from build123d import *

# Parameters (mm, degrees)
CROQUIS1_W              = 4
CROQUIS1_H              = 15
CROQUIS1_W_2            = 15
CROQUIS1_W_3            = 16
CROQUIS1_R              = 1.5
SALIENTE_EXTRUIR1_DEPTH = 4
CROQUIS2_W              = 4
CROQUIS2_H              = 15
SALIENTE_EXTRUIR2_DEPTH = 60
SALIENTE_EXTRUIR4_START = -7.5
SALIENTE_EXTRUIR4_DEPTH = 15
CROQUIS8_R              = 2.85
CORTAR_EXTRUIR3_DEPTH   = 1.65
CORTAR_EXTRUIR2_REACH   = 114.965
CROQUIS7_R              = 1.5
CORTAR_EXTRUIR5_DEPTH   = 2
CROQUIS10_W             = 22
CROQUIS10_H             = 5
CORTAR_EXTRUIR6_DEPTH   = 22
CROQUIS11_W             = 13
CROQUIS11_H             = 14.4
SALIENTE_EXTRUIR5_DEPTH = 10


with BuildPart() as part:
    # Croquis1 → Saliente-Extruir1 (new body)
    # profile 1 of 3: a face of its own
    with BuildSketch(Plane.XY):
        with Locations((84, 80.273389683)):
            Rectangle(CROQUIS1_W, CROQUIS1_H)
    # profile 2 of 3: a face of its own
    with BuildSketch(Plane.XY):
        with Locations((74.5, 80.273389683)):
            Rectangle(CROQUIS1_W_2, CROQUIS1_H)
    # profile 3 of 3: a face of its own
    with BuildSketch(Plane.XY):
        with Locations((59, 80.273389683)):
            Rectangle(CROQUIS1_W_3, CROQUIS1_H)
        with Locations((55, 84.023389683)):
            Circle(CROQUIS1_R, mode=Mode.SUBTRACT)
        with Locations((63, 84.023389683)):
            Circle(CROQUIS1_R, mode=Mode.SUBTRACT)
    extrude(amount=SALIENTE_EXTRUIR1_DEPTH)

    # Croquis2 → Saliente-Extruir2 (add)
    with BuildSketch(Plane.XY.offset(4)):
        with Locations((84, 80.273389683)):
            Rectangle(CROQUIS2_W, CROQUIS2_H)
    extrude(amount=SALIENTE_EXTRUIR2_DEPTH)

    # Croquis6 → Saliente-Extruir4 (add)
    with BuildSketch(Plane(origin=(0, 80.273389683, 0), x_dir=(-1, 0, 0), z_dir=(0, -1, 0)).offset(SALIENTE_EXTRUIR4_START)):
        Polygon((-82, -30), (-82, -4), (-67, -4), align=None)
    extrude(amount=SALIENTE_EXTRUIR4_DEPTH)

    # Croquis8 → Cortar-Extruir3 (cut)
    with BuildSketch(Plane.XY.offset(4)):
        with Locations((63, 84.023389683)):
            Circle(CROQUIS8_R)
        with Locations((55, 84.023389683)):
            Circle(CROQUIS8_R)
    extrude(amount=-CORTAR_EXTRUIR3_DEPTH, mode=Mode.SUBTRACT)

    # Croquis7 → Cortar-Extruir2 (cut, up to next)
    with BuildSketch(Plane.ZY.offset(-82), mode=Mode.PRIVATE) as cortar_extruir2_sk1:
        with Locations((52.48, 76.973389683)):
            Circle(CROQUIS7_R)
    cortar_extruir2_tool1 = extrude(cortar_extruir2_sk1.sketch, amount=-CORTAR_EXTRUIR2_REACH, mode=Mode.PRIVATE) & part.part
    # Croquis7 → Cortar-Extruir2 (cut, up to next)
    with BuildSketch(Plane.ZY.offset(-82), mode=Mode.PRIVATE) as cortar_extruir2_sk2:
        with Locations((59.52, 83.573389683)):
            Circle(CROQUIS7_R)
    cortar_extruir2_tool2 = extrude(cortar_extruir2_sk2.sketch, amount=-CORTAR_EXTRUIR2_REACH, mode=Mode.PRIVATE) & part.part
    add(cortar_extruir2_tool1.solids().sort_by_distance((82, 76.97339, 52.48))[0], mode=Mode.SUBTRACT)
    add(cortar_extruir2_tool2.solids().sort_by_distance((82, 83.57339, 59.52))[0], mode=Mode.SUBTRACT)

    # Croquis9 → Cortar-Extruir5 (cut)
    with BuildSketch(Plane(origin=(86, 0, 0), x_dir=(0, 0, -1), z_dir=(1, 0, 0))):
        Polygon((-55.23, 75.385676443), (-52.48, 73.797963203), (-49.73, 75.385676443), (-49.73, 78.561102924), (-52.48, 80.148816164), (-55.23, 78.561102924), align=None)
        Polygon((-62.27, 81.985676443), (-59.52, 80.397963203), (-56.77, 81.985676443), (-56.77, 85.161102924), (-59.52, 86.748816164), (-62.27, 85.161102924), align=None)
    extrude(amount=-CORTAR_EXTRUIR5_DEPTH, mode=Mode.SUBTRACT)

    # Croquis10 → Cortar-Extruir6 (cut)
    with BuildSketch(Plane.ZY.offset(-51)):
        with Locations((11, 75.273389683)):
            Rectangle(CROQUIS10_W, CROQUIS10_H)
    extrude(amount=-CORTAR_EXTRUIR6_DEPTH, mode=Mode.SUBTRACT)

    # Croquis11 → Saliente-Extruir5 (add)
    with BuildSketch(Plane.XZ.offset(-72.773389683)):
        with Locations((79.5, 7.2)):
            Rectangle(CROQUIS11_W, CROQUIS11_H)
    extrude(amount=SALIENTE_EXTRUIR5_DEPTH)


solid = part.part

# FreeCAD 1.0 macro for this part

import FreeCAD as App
import Part
import Sketcher

V = App.Vector
Q = App.Units.Quantity

doc = App.newDocument("Part")
body = doc.addObject("PartDesign::Body", "Body")

sketch1 = body.newObject("Sketcher::SketchObject", "Sketch")
sketch1.AttachmentSupport = (doc.getObject("XY_Plane"), [""])
sketch1.MapMode = "FlatFace"
sketch1.addGeometry(Part.LineSegment(V(86, 72.77339, 0), V(86, 87.77339, 0)), False)
sketch1.addGeometry(Part.LineSegment(V(86, 87.77339, 0), V(51, 87.77339, 0)), False)
sketch1.addGeometry(Part.LineSegment(V(51, 87.77339, 0), V(51, 72.77339, 0)), False)
sketch1.addGeometry(Part.LineSegment(V(51, 72.77339, 0), V(86, 72.77339, 0)), False)
sketch1.addGeometry(Part.Circle(V(63, 84.02339, 0), V(0, 0, 1), 1.5), False)
sketch1.addGeometry(Part.Circle(V(55, 84.02339, 0), V(0, 0, 1), 1.5), False)
sketch1.addConstraint(Sketcher.Constraint("Coincident", 0, 2, 1, 1))
sketch1.addConstraint(Sketcher.Constraint("Coincident", 1, 2, 2, 1))
sketch1.addConstraint(Sketcher.Constraint("Coincident", 2, 2, 3, 1))
sketch1.addConstraint(Sketcher.Constraint("Coincident", 3, 2, 0, 1))
sketch1.addConstraint(Sketcher.Constraint("Vertical", 0))
sketch1.addConstraint(Sketcher.Constraint("Horizontal", 1))
sketch1.addConstraint(Sketcher.Constraint("Vertical", 2))
sketch1.addConstraint(Sketcher.Constraint("Horizontal", 3))
sketch1.addConstraint(Sketcher.Constraint("Equal", 4, 5))
sketch1.addConstraint(Sketcher.Constraint("Horizontal", 4, 3, 5, 3))
sketch1.addConstraint(Sketcher.Constraint("Diameter", 4, 3.0))
sketch1.addConstraint(Sketcher.Constraint("DistanceX", 1, 2, 1, 1, 35.0))
sketch1.addConstraint(Sketcher.Constraint("DistanceY", 0, 1, 0, 2, 15.0))
sketch1.addConstraint(Sketcher.Constraint("DistanceX", -1, 1, 4, 3, 63.0))
sketch1.addConstraint(Sketcher.Constraint("DistanceX", -1, 1, 5, 3, 55.0))
sketch1.addConstraint(Sketcher.Constraint("DistanceX", -1, 1, 0, 2, 86.0))
sketch1.addConstraint(Sketcher.Constraint("DistanceY", 4, 3, 0, 2, 3.75))
sketch1.addConstraint(Sketcher.Constraint("DistanceY", -1, 1, 4, 3, 84.02339))
pad1 = body.newObject("PartDesign::Pad", "Pad")
pad1.Profile = sketch1
pad1.Length = 4

sketch2 = body.newObject("Sketcher::SketchObject", "Sketch001")
sketch2.AttachmentSupport = (doc.getObject("XY_Plane"), [""])
sketch2.MapMode = "FlatFace"
sketch2.AttachmentOffset = App.Placement(V(0, 0, 4), App.Rotation())
sketch2.addGeometry(Part.LineSegment(V(82, 87.77339, 0), V(82, 72.77339, 0)), False)
sketch2.addGeometry(Part.LineSegment(V(82, 72.77339, 0), V(86, 72.77339, 0)), False)
sketch2.addGeometry(Part.LineSegment(V(86, 72.77339, 0), V(86, 87.77339, 0)), False)
sketch2.addGeometry(Part.LineSegment(V(86, 87.77339, 0), V(82, 87.77339, 0)), False)
sketch2.addConstraint(Sketcher.Constraint("Coincident", 0, 2, 1, 1))
sketch2.addConstraint(Sketcher.Constraint("Coincident", 1, 2, 2, 1))
sketch2.addConstraint(Sketcher.Constraint("Coincident", 2, 2, 3, 1))
sketch2.addConstraint(Sketcher.Constraint("Coincident", 3, 2, 0, 1))
sketch2.addConstraint(Sketcher.Constraint("Vertical", 0))
sketch2.addConstraint(Sketcher.Constraint("Horizontal", 1))
sketch2.addConstraint(Sketcher.Constraint("Vertical", 2))
sketch2.addConstraint(Sketcher.Constraint("Horizontal", 3))
sketch2.addConstraint(Sketcher.Constraint("DistanceX", 1, 1, 1, 2, 4.0))
sketch2.addConstraint(Sketcher.Constraint("DistanceY", 0, 2, 0, 1, 15.0))
sketch2.addConstraint(Sketcher.Constraint("DistanceX", -1, 1, 0, 2, 82.0))
sketch2.addConstraint(Sketcher.Constraint("DistanceY", -1, 1, 0, 2, 72.77339))
pad2 = body.newObject("PartDesign::Pad", "Pad001")
pad2.Profile = sketch2
pad2.Length = 60

sketch3 = body.newObject("Sketcher::SketchObject", "Sketch002")
sketch3.AttachmentSupport = (doc.getObject("XZ_Plane"), [""])
sketch3.MapMode = "FlatFace"
sketch3.AttachmentOffset = App.Placement(V(0, 0, -87.77339), App.Rotation())
sketch3.addGeometry(Part.LineSegment(V(82, 4, 0), V(82, 30, 0)), False)
sketch3.addGeometry(Part.LineSegment(V(82, 30, 0), V(67, 4, 0)), False)
sketch3.addGeometry(Part.LineSegment(V(67, 4, 0), V(82, 4, 0)), False)
sketch3.addConstraint(Sketcher.Constraint("Coincident", 0, 2, 1, 1))
sketch3.addConstraint(Sketcher.Constraint("Coincident", 1, 2, 2, 1))
sketch3.addConstraint(Sketcher.Constraint("Coincident", 2, 2, 0, 1))
sketch3.addConstraint(Sketcher.Constraint("Vertical", 0))
sketch3.addConstraint(Sketcher.Constraint("Horizontal", 2))
sketch3.addConstraint(Sketcher.Constraint("DistanceX", 2, 1, 2, 2, 15.0))
sketch3.addConstraint(Sketcher.Constraint("DistanceY", 0, 1, 0, 2, 26.0))
sketch3.addConstraint(Sketcher.Constraint("DistanceX", -1, 1, 0, 2, 82.0))
sketch3.addConstraint(Sketcher.Constraint("DistanceY", -1, 1, 0, 2, 30.0))
pad3 = body.newObject("PartDesign::Pad", "Pad002")
pad3.Profile = sketch3
pad3.Length = 15

sketch4 = body.newObject("Sketcher::SketchObject", "Sketch003")
sketch4.AttachmentSupport = (doc.getObject("XY_Plane"), [""])
sketch4.MapMode = "FlatFace"
sketch4.AttachmentOffset = App.Placement(V(0, 0, 4), App.Rotation())
sketch4.addGeometry(Part.Circle(V(63, 84.02339, 0), V(0, 0, 1), 2.85), False)
sketch4.addGeometry(Part.Circle(V(55, 84.02339, 0), V(0, 0, 1), 2.85), False)
sketch4.addConstraint(Sketcher.Constraint("Equal", 0, 1))
sketch4.addConstraint(Sketcher.Constraint("Horizontal", 0, 3, 1, 3))
sketch4.addConstraint(Sketcher.Constraint("Diameter", 0, 5.7))
sketch4.addConstraint(Sketcher.Constraint("DistanceX", -1, 1, 0, 3, 63.0))
sketch4.addConstraint(Sketcher.Constraint("DistanceX", -1, 1, 1, 3, 55.0))
sketch4.addConstraint(Sketcher.Constraint("DistanceY", -1, 1, 0, 3, 84.02339))
pocket1 = body.newObject("PartDesign::Pocket", "Pocket")
pocket1.Profile = sketch4
pocket1.Length = 1.65

sketch5 = body.newObject("Sketcher::SketchObject", "Sketch004")
sketch5.AttachmentSupport = (doc.getObject("YZ_Plane"), [""])
sketch5.MapMode = "FlatFace"
sketch5.AttachmentOffset = App.Placement(V(0, 0, 82), App.Rotation())
sketch5.addGeometry(Part.Circle(V(76.97339, 52.48, 0), V(0, 0, 1), 1.5), False)
sketch5.addConstraint(Sketcher.Constraint("Diameter", 0, 3.0))
sketch5.addConstraint(Sketcher.Constraint("DistanceY", -1, 1, 0, 3, 52.48))
sketch5.addConstraint(Sketcher.Constraint("DistanceX", -1, 1, 0, 3, 76.97339))
pocket2 = body.newObject("PartDesign::Pocket", "Pocket001")
pocket2.Profile = sketch5
pocket2.Type = "UpToFirst"
pocket2.Reversed = True

sketch6 = body.newObject("Sketcher::SketchObject", "Sketch005")
sketch6.AttachmentSupport = (doc.getObject("YZ_Plane"), [""])
sketch6.MapMode = "FlatFace"
sketch6.AttachmentOffset = App.Placement(V(0, 0, 82), App.Rotation())
sketch6.addGeometry(Part.Circle(V(83.57339, 59.52, 0), V(0, 0, 1), 1.5), False)
sketch6.addConstraint(Sketcher.Constraint("Diameter", 0, 3.0))
sketch6.addConstraint(Sketcher.Constraint("DistanceY", -1, 1, 0, 3, 59.52))
sketch6.addConstraint(Sketcher.Constraint("DistanceX", -1, 1, 0, 3, 83.57339))
pocket3 = body.newObject("PartDesign::Pocket", "Pocket002")
pocket3.Profile = sketch6
pocket3.Type = "UpToFirst"
pocket3.Reversed = True

sketch7 = body.newObject("Sketcher::SketchObject", "Sketch006")
sketch7.AttachmentSupport = (doc.getObject("YZ_Plane"), [""])
sketch7.MapMode = "FlatFace"
sketch7.AttachmentOffset = App.Placement(V(0, 0, 86), App.Rotation())
sketch7.addGeometry(Part.LineSegment(V(75.385676, 55.23, 0), V(73.797963, 52.48, 0)), False)
sketch7.addGeometry(Part.LineSegment(V(73.797963, 52.48, 0), V(75.385676, 49.73, 0)), False)
sketch7.addGeometry(Part.LineSegment(V(75.385676, 49.73, 0), V(78.561103, 49.73, 0)), False)
sketch7.addGeometry(Part.LineSegment(V(78.561103, 49.73, 0), V(80.148816, 52.48, 0)), False)
sketch7.addGeometry(Part.LineSegment(V(80.148816, 52.48, 0), V(78.561103, 55.23, 0)), False)
sketch7.addGeometry(Part.LineSegment(V(78.561103, 55.23, 0), V(75.385676, 55.23, 0)), False)
sketch7.addGeometry(Part.LineSegment(V(81.985676, 62.27, 0), V(80.397963, 59.52, 0)), False)
sketch7.addGeometry(Part.LineSegment(V(80.397963, 59.52, 0), V(81.985676, 56.77, 0)), False)
sketch7.addGeometry(Part.LineSegment(V(81.985676, 56.77, 0), V(85.161103, 56.77, 0)), False)
sketch7.addGeometry(Part.LineSegment(V(85.161103, 56.77, 0), V(86.748816, 59.52, 0)), False)
sketch7.addGeometry(Part.LineSegment(V(86.748816, 59.52, 0), V(85.161103, 62.27, 0)), False)
sketch7.addGeometry(Part.LineSegment(V(85.161103, 62.27, 0), V(81.985676, 62.27, 0)), False)
sketch7.addConstraint(Sketcher.Constraint("Coincident", 0, 2, 1, 1))
sketch7.addConstraint(Sketcher.Constraint("Coincident", 1, 2, 2, 1))
sketch7.addConstraint(Sketcher.Constraint("Coincident", 2, 2, 3, 1))
sketch7.addConstraint(Sketcher.Constraint("Coincident", 3, 2, 4, 1))
sketch7.addConstraint(Sketcher.Constraint("Coincident", 4, 2, 5, 1))
sketch7.addConstraint(Sketcher.Constraint("Coincident", 5, 2, 0, 1))
sketch7.addConstraint(Sketcher.Constraint("Coincident", 6, 2, 7, 1))
sketch7.addConstraint(Sketcher.Constraint("Coincident", 7, 2, 8, 1))
sketch7.addConstraint(Sketcher.Constraint("Coincident", 8, 2, 9, 1))
sketch7.addConstraint(Sketcher.Constraint("Coincident", 9, 2, 10, 1))
sketch7.addConstraint(Sketcher.Constraint("Coincident", 10, 2, 11, 1))
sketch7.addConstraint(Sketcher.Constraint("Coincident", 11, 2, 6, 1))
sketch7.addConstraint(Sketcher.Constraint("Horizontal", 2))
sketch7.addConstraint(Sketcher.Constraint("Horizontal", 5))
sketch7.addConstraint(Sketcher.Constraint("Horizontal", 8))
sketch7.addConstraint(Sketcher.Constraint("Horizontal", 11))
sketch7.addConstraint(Sketcher.Constraint("Parallel", 0, 3))
sketch7.addConstraint(Sketcher.Constraint("Parallel", 1, 4))
sketch7.addConstraint(Sketcher.Constraint("Parallel", 3, 6))
sketch7.addConstraint(Sketcher.Constraint("Parallel", 4, 7))
sketch7.addConstraint(Sketcher.Constraint("Parallel", 6, 9))
sketch7.addConstraint(Sketcher.Constraint("Parallel", 7, 10))
sketch7.addConstraint(Sketcher.Constraint("Horizontal", 0, 2, 3, 2))
sketch7.addConstraint(Sketcher.Constraint("Horizontal", 6, 2, 9, 2))
sketch7.addConstraint(Sketcher.Constraint("Vertical", 2, 2, 4, 2))
sketch7.addConstraint(Sketcher.Constraint("Vertical", 1, 2, 5, 2))
sketch7.addConstraint(Sketcher.Constraint("Vertical", 8, 2, 10, 2))
sketch7.addConstraint(Sketcher.Constraint("Equal", 5, 8))
sketch7.addConstraint(Sketcher.Constraint("Equal", 4, 6))
sketch7.addConstraint(Sketcher.Constraint("Angle", 0, Q("-120 deg")))
sketch7.addConstraint(Sketcher.Constraint("DistanceY", 2, 2, 4, 2, 5.5))
sketch7.addConstraint(Sketcher.Constraint("DistanceX", 0, 2, 6, 2, 6.6))
sketch7.addConstraint(Sketcher.Constraint("DistanceY", -1, 1, 0, 2, 52.48))
sketch7.addConstraint(Sketcher.Constraint("DistanceY", -1, 1, 6, 2, 59.52))
sketch7.addConstraint(Sketcher.Constraint("DistanceX", 2, 1, 2, 2, 3.175426))
sketch7.addConstraint(Sketcher.Constraint("DistanceX", -1, 1, 0, 2, 73.797963))
pocket4 = body.newObject("PartDesign::Pocket", "Pocket003")
pocket4.Profile = sketch7
pocket4.Length = 2

sketch8 = body.newObject("Sketcher::SketchObject", "Sketch007")
sketch8.AttachmentSupport = (doc.getObject("YZ_Plane"), [""])
sketch8.MapMode = "FlatFace"
sketch8.AttachmentOffset = App.Placement(V(0, 0, 51), App.Rotation())
sketch8.addGeometry(Part.LineSegment(V(77.77339, 0, 0), V(72.77339, 0, 0)), False)
sketch8.addGeometry(Part.LineSegment(V(72.77339, 0, 0), V(72.77339, 22, 0)), False)
sketch8.addGeometry(Part.LineSegment(V(72.77339, 22, 0), V(77.77339, 22, 0)), False)
sketch8.addGeometry(Part.LineSegment(V(77.77339, 22, 0), V(77.77339, 0, 0)), False)
sketch8.addConstraint(Sketcher.Constraint("Coincident", 0, 2, 1, 1))
sketch8.addConstraint(Sketcher.Constraint("Coincident", 1, 2, 2, 1))
sketch8.addConstraint(Sketcher.Constraint("Coincident", 2, 2, 3, 1))
sketch8.addConstraint(Sketcher.Constraint("Coincident", 3, 2, 0, 1))
sketch8.addConstraint(Sketcher.Constraint("Horizontal", 0))
sketch8.addConstraint(Sketcher.Constraint("Vertical", 1))
sketch8.addConstraint(Sketcher.Constraint("Horizontal", 2))
sketch8.addConstraint(Sketcher.Constraint("Vertical", 3))
sketch8.addConstraint(Sketcher.Constraint("PointOnObject", 0, 2, -1))
sketch8.addConstraint(Sketcher.Constraint("DistanceX", 0, 2, 0, 1, 5.0))
sketch8.addConstraint(Sketcher.Constraint("DistanceY", 1, 1, 1, 2, 22.0))
sketch8.addConstraint(Sketcher.Constraint("DistanceX", -1, 1, 0, 2, 72.77339))
pocket5 = body.newObject("PartDesign::Pocket", "Pocket004")
pocket5.Profile = sketch8
pocket5.Length = 22
pocket5.Reversed = True

sketch9 = body.newObject("Sketcher::SketchObject", "Sketch008")
sketch9.AttachmentSupport = (doc.getObject("XZ_Plane"), [""])
sketch9.MapMode = "FlatFace"
sketch9.AttachmentOffset = App.Placement(V(0, 0, -72.77339), App.Rotation())
sketch9.addGeometry(Part.LineSegment(V(73, 14.4, 0), V(73, 0, 0)), False)
sketch9.addGeometry(Part.LineSegment(V(73, 0, 0), V(86, 0, 0)), False)
sketch9.addGeometry(Part.LineSegment(V(86, 0, 0), V(86, 14.4, 0)), False)
sketch9.addGeometry(Part.LineSegment(V(86, 14.4, 0), V(73, 14.4, 0)), False)
sketch9.addConstraint(Sketcher.Constraint("Coincident", 0, 2, 1, 1))
sketch9.addConstraint(Sketcher.Constraint("Coincident", 1, 2, 2, 1))
sketch9.addConstraint(Sketcher.Constraint("Coincident", 2, 2, 3, 1))
sketch9.addConstraint(Sketcher.Constraint("Coincident", 3, 2, 0, 1))
sketch9.addConstraint(Sketcher.Constraint("Vertical", 0))
sketch9.addConstraint(Sketcher.Constraint("Horizontal", 1))
sketch9.addConstraint(Sketcher.Constraint("Vertical", 2))
sketch9.addConstraint(Sketcher.Constraint("Horizontal", 3))
sketch9.addConstraint(Sketcher.Constraint("PointOnObject", 0, 2, -1))
sketch9.addConstraint(Sketcher.Constraint("DistanceX", 1, 1, 1, 2, 13.0))
sketch9.addConstraint(Sketcher.Constraint("DistanceY", 0, 2, 0, 1, 14.4))
sketch9.addConstraint(Sketcher.Constraint("DistanceX", -1, 1, 0, 2, 73.0))
pad4 = body.newObject("PartDesign::Pad", "Pad003")
pad4.Profile = sketch9
pad4.Length = 10

doc.recompute()
